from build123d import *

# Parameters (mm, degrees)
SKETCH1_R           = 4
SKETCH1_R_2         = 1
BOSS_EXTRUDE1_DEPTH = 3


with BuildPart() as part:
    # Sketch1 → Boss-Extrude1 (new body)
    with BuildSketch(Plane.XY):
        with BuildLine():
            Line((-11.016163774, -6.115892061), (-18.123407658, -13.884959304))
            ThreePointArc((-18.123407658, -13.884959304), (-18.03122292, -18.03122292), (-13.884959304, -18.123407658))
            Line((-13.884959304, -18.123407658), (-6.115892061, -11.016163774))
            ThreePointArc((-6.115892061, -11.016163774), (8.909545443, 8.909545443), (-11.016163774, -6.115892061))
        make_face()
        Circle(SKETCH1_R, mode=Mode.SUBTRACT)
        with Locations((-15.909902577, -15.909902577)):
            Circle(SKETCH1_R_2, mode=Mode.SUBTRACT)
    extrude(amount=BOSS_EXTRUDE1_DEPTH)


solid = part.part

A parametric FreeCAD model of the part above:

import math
import FreeCAD as App
import Part
import Sketcher
Q = App.Units.Quantity

doc = App.newDocument("Part")
params = doc.addObject("Spreadsheet::Sheet", "Params")
for row, (alias, value) in enumerate([
    ("sketch1_diameter", "2 mm"),
    ("sketch1_diameter2", "8 mm"),
    ("sketch1_radius", "3 mm"),
    ("sketch1_radius2", "12.6 mm"),
    ("pad1_length", "3 mm"),
], start=1):
    params.set(f"A{row}", alias)
    params.set(f"B{row}", "=" + value)
    params.setAlias(f"B{row}", alias)

body = doc.addObject("PartDesign::Body", "Body")

sketch1 = body.newObject("Sketcher::SketchObject", "Sketch")
sketch1.AttachmentSupport = (doc.getObject("XY_Plane"), [""])
sketch1.MapMode = "FlatFace"
sketch1.addGeometry([
    Part.LineSegment(App.Vector(-11.016164, -6.115892, 0), App.Vector(-18.123408, -13.884959, 0)),
    Part.ArcOfCircle(Part.Circle(App.Vector(-15.909903, -15.909903, 0), App.Vector(0, 0, 1), 3), math.radians(137.547318), math.radians(312.452682)),
    Part.LineSegment(App.Vector(-13.884959, -18.123408, 0), App.Vector(-6.115892, -11.016164, 0)),
    Part.ArcOfCircle(Part.Circle(App.Vector(0, 0, 0), App.Vector(0, 0, 1), 12.6), math.radians(-119.037913), math.radians(209.037913)),
    Part.Circle(App.Vector(-15.909903, -15.909903, 0), App.Vector(0, 0, 1), 1),
    Part.Circle(App.Vector(0, 0, 0), App.Vector(0, 0, 1), 4),
], False)
sketch1.addConstraint([
    Sketcher.Constraint("Coincident", 0, 2, 1, 1),
    Sketcher.Constraint("Coincident", 1, 2, 2, 1),
    Sketcher.Constraint("Coincident", 2, 2, 3, 1),
    Sketcher.Constraint("Coincident", 3, 2, 0, 1),
    Sketcher.Constraint("Coincident", 3, 3, -1, 1),
    Sketcher.Constraint("Coincident", 5, 3, -1, 1),
    Sketcher.Constraint("Coincident", 4, 3, 1, 3),
    Sketcher.Constraint("Diameter", 4, Q("2 mm")),
    Sketcher.Constraint("Diameter", 5, Q("8 mm")),
    Sketcher.Constraint("Radius", 1, Q("3 mm")),
    Sketcher.Constraint("Radius", 3, Q("12.6 mm")),
    Sketcher.Constraint("DistanceY", 0, 2, -1, 1, Q("13.884959 mm")),
    Sketcher.Constraint("DistanceX", 1, 2, -1, 1, Q("13.884959 mm")),
    Sketcher.Constraint("DistanceX", 0, 2, 1, 2, Q("4.238448 mm")),
    Sketcher.Constraint("DistanceY", 1, 2, 0, 2, Q("4.238448 mm")),
    Sketcher.Constraint("DistanceX", 1, 3, 2, 2, Q("9.794011 mm")),
    Sketcher.Constraint("DistanceX", 3, 2, 2, 2, Q("4.900272 mm")),
])
sketch1.setExpression("Constraints[7]", "Params.sketch1_diameter")
sketch1.setExpression("Constraints[8]", "Params.sketch1_diameter2")
sketch1.setExpression("Constraints[9]", "Params.sketch1_radius")
sketch1.setExpression("Constraints[10]", "Params.sketch1_radius2")
pad1 = body.newObject("PartDesign::Pad", "Pad")
pad1.Profile = sketch1
pad1.setExpression("Length", "Params.pad1_length")

doc.recompute()
